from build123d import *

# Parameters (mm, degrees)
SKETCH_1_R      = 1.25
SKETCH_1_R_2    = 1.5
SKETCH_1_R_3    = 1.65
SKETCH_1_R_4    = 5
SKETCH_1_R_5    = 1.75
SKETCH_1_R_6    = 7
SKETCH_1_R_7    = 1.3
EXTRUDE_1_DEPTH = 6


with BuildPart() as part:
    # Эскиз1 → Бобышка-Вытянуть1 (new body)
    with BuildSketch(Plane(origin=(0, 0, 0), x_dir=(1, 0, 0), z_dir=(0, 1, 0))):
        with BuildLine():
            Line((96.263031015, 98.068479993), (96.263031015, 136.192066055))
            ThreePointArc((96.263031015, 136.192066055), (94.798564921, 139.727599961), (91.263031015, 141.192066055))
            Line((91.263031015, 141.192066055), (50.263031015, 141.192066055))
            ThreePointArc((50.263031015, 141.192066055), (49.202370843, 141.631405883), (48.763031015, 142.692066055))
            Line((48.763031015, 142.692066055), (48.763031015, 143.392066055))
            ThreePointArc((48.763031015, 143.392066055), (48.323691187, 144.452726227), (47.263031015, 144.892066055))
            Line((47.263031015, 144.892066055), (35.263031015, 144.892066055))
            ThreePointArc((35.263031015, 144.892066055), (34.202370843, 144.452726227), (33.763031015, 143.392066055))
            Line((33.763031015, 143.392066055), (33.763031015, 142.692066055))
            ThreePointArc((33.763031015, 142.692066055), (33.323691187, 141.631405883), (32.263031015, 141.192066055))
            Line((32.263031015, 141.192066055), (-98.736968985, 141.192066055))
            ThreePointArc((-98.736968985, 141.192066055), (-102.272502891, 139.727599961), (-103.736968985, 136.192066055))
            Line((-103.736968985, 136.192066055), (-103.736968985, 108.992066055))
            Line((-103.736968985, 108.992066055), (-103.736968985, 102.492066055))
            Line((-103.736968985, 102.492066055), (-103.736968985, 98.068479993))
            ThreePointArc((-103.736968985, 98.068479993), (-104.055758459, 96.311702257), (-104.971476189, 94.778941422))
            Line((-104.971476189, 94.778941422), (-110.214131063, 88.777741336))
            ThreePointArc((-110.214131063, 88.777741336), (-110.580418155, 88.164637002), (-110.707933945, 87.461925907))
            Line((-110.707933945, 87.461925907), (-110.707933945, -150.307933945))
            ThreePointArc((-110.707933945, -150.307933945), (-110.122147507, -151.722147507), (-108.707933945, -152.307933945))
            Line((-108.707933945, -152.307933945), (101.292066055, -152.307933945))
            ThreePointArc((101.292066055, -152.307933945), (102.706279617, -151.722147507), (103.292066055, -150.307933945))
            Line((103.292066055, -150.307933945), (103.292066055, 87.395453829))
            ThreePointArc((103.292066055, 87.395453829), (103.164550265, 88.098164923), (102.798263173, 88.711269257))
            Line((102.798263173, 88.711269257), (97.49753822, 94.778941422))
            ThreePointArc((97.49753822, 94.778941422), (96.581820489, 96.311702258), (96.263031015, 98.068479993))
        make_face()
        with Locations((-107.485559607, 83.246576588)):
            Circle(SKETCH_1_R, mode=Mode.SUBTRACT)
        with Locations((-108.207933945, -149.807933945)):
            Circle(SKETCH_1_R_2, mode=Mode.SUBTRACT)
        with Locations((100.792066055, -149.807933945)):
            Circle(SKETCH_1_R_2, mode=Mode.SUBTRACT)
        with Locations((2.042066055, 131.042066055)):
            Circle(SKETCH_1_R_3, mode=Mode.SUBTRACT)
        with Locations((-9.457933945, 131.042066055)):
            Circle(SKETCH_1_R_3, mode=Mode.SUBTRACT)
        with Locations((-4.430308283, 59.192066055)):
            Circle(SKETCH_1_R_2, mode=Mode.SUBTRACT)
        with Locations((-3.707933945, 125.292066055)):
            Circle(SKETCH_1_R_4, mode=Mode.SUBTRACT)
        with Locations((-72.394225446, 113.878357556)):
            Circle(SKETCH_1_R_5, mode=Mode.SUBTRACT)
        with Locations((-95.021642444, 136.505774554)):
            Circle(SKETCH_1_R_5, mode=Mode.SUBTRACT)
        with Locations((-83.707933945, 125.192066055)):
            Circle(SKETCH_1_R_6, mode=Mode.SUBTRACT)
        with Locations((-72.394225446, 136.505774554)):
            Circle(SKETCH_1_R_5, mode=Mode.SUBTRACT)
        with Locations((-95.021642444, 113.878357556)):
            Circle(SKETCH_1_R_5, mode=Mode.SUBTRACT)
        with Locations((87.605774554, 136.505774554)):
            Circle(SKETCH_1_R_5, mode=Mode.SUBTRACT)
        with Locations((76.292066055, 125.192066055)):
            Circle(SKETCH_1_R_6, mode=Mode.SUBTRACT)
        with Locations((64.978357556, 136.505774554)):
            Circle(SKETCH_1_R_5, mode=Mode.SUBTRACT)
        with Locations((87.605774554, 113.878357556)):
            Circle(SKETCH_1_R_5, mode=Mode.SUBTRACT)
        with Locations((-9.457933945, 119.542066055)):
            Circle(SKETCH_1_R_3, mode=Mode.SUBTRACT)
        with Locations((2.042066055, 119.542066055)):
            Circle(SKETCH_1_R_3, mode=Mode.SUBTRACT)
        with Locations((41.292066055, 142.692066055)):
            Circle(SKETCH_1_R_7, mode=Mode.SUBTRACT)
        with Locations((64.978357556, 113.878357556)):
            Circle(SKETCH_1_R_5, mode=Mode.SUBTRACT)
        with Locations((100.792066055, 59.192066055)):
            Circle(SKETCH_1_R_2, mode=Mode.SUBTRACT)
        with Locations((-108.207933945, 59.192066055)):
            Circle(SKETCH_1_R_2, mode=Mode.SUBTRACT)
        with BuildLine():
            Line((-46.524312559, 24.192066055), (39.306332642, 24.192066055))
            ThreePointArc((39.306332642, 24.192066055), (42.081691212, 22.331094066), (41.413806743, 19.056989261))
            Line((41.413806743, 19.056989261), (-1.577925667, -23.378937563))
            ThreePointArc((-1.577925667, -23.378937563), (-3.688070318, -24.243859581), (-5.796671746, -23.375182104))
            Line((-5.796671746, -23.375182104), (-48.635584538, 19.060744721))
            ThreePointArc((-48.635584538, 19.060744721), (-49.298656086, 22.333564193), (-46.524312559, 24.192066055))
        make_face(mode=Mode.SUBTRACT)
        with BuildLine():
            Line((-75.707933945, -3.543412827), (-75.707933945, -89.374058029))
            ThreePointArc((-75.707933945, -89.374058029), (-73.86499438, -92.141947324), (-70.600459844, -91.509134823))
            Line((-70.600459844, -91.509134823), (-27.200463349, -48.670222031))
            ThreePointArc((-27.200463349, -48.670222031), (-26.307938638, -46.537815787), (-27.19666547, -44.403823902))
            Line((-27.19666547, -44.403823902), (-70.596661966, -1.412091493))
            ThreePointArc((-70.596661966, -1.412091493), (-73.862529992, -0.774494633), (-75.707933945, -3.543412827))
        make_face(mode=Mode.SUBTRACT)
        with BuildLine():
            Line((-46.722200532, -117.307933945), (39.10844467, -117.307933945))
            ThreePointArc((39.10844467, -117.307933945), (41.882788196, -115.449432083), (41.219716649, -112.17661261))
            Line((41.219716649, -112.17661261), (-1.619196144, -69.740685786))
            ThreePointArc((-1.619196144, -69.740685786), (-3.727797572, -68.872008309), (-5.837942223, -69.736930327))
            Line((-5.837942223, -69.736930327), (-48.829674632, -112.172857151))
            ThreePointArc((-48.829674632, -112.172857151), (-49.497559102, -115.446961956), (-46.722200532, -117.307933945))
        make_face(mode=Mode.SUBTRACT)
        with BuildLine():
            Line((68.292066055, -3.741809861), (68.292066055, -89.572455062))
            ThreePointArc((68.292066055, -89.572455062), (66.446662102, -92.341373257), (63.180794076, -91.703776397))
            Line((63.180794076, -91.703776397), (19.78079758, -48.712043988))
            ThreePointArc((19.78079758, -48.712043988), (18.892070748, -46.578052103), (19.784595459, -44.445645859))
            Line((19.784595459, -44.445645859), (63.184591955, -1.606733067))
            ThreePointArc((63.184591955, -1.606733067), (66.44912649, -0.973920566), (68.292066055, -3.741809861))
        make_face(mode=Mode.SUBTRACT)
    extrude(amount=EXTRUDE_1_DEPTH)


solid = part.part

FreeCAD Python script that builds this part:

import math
import FreeCAD as App
import Part
import Sketcher

doc = App.newDocument("Part")
body = doc.addObject("PartDesign::Body", "Body")

sketch1 = doc.addObject("Sketcher::SketchObject", "Sketch")
body.addObject(sketch1)
sketch1.AttachmentSupport = (doc.XZ_Plane, [""])
sketch1.MapMode = "FlatFace"
sketch1.addGeometry([
    Part.LineSegment(App.Vector(96.3, -98.1, 0), App.Vector(96.3, -136.2, 0)),
    Part.ArcOfCircle(Part.Circle(App.Vector(91.3, -136.2, 0), App.Vector(0, 0, 1), 5), math.radians(-90), math.radians(0)),
    Part.LineSegment(App.Vector(91.3, -141.2, 0), App.Vector(50.3, -141.2, 0)),
    Part.ArcOfCircle(Part.Circle(App.Vector(50.3, -142.7, 0), App.Vector(0, 0, 1), 1.5), math.radians(90), math.radians(180)),
    Part.LineSegment(App.Vector(48.8, -142.7, 0), App.Vector(48.8, -143.4, 0)),
    Part.ArcOfCircle(Part.Circle(App.Vector(47.3, -143.4, 0), App.Vector(0, 0, 1), 1.5), math.radians(-90), math.radians(0)),
    Part.LineSegment(App.Vector(47.3, -144.9, 0), App.Vector(35.3, -144.9, 0)),
    Part.ArcOfCircle(Part.Circle(App.Vector(35.3, -143.4, 0), App.Vector(0, 0, 1), 1.5), math.radians(180), math.radians(270)),
    Part.LineSegment(App.Vector(33.8, -143.4, 0), App.Vector(33.8, -142.7, 0)),
    Part.ArcOfCircle(Part.Circle(App.Vector(32.3, -142.7, 0), App.Vector(0, 0, 1), 1.5), math.radians(0), math.radians(90)),
    Part.LineSegment(App.Vector(32.3, -141.2, 0), App.Vector(-98.7, -141.2, 0)),
    Part.ArcOfCircle(Part.Circle(App.Vector(-98.7, -136.2, 0), App.Vector(0, 0, 1), 5), math.radians(180), math.radians(270)),
    Part.LineSegment(App.Vector(-103.7, -136.2, 0), App.Vector(-103.7, -98.1, 0)),
    Part.ArcOfCircle(Part.Circle(App.Vector(-108.7, -98.1, 0), App.Vector(0, 0, 1), 5), math.radians(0), math.radians(41)),
    Part.LineSegment(App.Vector(-105, -94.8, 0), App.Vector(-110.2, -88.8, 0)),
    Part.ArcOfCircle(Part.Circle(App.Vector(-108.7, -87.5, 0), App.Vector(0, 0, 1), 2), math.radians(-180), math.radians(-139)),
    Part.LineSegment(App.Vector(-110.7, -87.5, 0), App.Vector(-110.7, 150.3, 0)),
    Part.ArcOfCircle(Part.Circle(App.Vector(-108.7, 150.3, 0), App.Vector(0, 0, 1), 2), math.radians(90), math.radians(180)),
    Part.LineSegment(App.Vector(-108.7, 152.3, 0), App.Vector(101.3, 152.3, 0)),
    Part.ArcOfCircle(Part.Circle(App.Vector(101.3, 150.3, 0), App.Vector(0, 0, 1), 2), math.radians(0), math.radians(90)),
    Part.LineSegment(App.Vector(103.3, 150.3, 0), App.Vector(103.3, -87.4, 0)),
    Part.ArcOfCircle(Part.Circle(App.Vector(101.3, -87.4, 0), App.Vector(0, 0, 1), 2), math.radians(-41), math.radians(0)),
    Part.LineSegment(App.Vector(102.8, -88.7, 0), App.Vector(97.5, -94.8, 0)),
    Part.ArcOfCircle(Part.Circle(App.Vector(101.3, -98.1, 0), App.Vector(0, 0, 1), 5), math.radians(139), math.radians(180)),
    Part.Circle(App.Vector(-108.2, 149.8, 0), App.Vector(0, 0, 1), 1.5),
    Part.LineSegment(App.Vector(39.1, 117.3, 0), App.Vector(-46.7, 117.3, 0)),
    Part.ArcOfCircle(Part.Circle(App.Vector(-46.7, 114.3, 0), App.Vector(0, 0, 1), 3), math.radians(90), math.radians(225)),
    Part.LineSegment(App.Vector(-48.8, 112.2, 0), App.Vector(-5.8, 69.7, 0)),
    Part.ArcOfCircle(Part.Circle(App.Vector(-3.7, 71.9, 0), App.Vector(0, 0, 1), 3), math.radians(-135), math.radians(-45)),
    Part.LineSegment(App.Vector(-1.6, 69.7, 0), App.Vector(41.2, 112.2, 0)),
    Part.ArcOfCircle(Part.Circle(App.Vector(39.1, 114.3, 0), App.Vector(0, 0, 1), 3), math.radians(-45), math.radians(90)),
    Part.LineSegment(App.Vector(-75.7, 89.4, 0), App.Vector(-75.7, 3.5, 0)),
    Part.ArcOfCircle(Part.Circle(App.Vector(-72.7, 3.5, 0), App.Vector(0, 0, 1), 3), math.radians(-180), math.radians(-45)),
    Part.LineSegment(App.Vector(-70.6, 1.4, 0), App.Vector(-27.2, 44.4, 0)),
    Part.ArcOfCircle(Part.Circle(App.Vector(-29.3, 46.5, 0), App.Vector(0, 0, 1), 3), math.radians(-45), math.radians(45)),
    Part.LineSegment(App.Vector(-27.2, 48.7, 0), App.Vector(-70.6, 91.5, 0)),
    Part.ArcOfCircle(Part.Circle(App.Vector(-72.7, 89.4, 0), App.Vector(0, 0, 1), 3), math.radians(45), math.radians(180)),
    Part.Circle(App.Vector(100.8, 149.8, 0), App.Vector(0, 0, 1), 1.5),
    Part.ArcOfCircle(Part.Circle(App.Vector(65.3, 3.7, 0), App.Vector(0, 0, 1), 3), math.radians(-135), math.radians(0)),
    Part.LineSegment(App.Vector(68.3, 3.7, 0), App.Vector(68.3, 89.6, 0)),
    Part.ArcOfCircle(Part.Circle(App.Vector(65.3, 89.6, 0), App.Vector(0, 0, 1), 3), math.radians(0), math.radians(135)),
    Part.LineSegment(App.Vector(63.2, 91.7, 0), App.Vector(19.8, 48.7, 0)),
    Part.ArcOfCircle(Part.Circle(App.Vector(21.9, 46.6, 0), App.Vector(0, 0, 1), 3), math.radians(135), math.radians(225)),
    Part.LineSegment(App.Vector(19.8, 44.4, 0), App.Vector(63.2, 1.6, 0)),
    Part.Circle(App.Vector(-108.2, -59.2, 0), App.Vector(0, 0, 1), 1.5),
    Part.Circle(App.Vector(-4.4, -59.2, 0), App.Vector(0, 0, 1), 1.5),
    Part.Circle(App.Vector(-107.5, -83.2, 0), App.Vector(0, 0, 1), 1.2),
    Part.Circle(App.Vector(-95, -113.9, 0), App.Vector(0, 0, 1), 1.8),
    Part.Circle(App.Vector(-83.7, -125.2, 0), App.Vector(0, 0, 1), 7),
    Part.Circle(App.Vector(-95, -136.5, 0), App.Vector(0, 0, 1), 1.8),
    Part.Circle(App.Vector(-72.4, -113.9, 0), App.Vector(0, 0, 1), 1.8),
    Part.Circle(App.Vector(-72.4, -136.5, 0), App.Vector(0, 0, 1), 1.8),
    Part.Circle(App.Vector(-9.5, -119.5, 0), App.Vector(0, 0, 1), 1.6),
    Part.Circle(App.Vector(-3.7, -125.3, 0), App.Vector(0, 0, 1), 5),
    Part.Circle(App.Vector(-9.5, -131, 0), App.Vector(0, 0, 1), 1.6),
    Part.ArcOfCircle(Part.Circle(App.Vector(-46.5, -21.2, 0), App.Vector(0, 0, 1), 3), math.radians(135), math.radians(270)),
    Part.LineSegment(App.Vector(-46.5, -24.2, 0), App.Vector(39.3, -24.2, 0)),
    Part.ArcOfCircle(Part.Circle(App.Vector(39.3, -21.2, 0), App.Vector(0, 0, 1), 3), math.radians(-90), math.radians(45)),
    Part.LineSegment(App.Vector(41.4, -19.1, 0), App.Vector(-1.6, 23.4, 0)),
    Part.ArcOfCircle(Part.Circle(App.Vector(-3.7, 21.2, 0), App.Vector(0, 0, 1), 3), math.radians(45), math.radians(135)),
    Part.LineSegment(App.Vector(-5.8, 23.4, 0), App.Vector(-48.6, -19.1, 0)),
    Part.Circle(App.Vector(100.8, -59.2, 0), App.Vector(0, 0, 1), 1.5),
    Part.Circle(App.Vector(2, -119.5, 0), App.Vector(0, 0, 1), 1.6),
    Part.Circle(App.Vector(2, -131, 0), App.Vector(0, 0, 1), 1.6),
    Part.Circle(App.Vector(41.3, -142.7, 0), App.Vector(0, 0, 1), 1.3),
    Part.Circle(App.Vector(65, -113.9, 0), App.Vector(0, 0, 1), 1.8),
    Part.Circle(App.Vector(65, -136.5, 0), App.Vector(0, 0, 1), 1.8),
    Part.Circle(App.Vector(87.6, -113.9, 0), App.Vector(0, 0, 1), 1.8),
    Part.Circle(App.Vector(76.3, -125.2, 0), App.Vector(0, 0, 1), 7),
    Part.Circle(App.Vector(87.6, -136.5, 0), App.Vector(0, 0, 1), 1.8),
], False)
sketch1.addConstraint([
    Sketcher.Constraint("Tangent", 0, 2, 1, 2),
    Sketcher.Constraint("Tangent", 1, 1, 2, 1),
    Sketcher.Constraint("Tangent", 2, 2, 3, 1),
    Sketcher.Constraint("Tangent", 3, 2, 4, 1),
    Sketcher.Constraint("Tangent", 4, 2, 5, 2),
    Sketcher.Constraint("Tangent", 5, 1, 6, 1),
    Sketcher.Constraint("Tangent", 6, 2, 7, 2),
    Sketcher.Constraint("Tangent", 7, 1, 8, 1),
    Sketcher.Constraint("Tangent", 8, 2, 9, 1),
    Sketcher.Constraint("Tangent", 9, 2, 10, 1),
    Sketcher.Constraint("Tangent", 10, 2, 11, 2),
    Sketcher.Constraint("Tangent", 11, 1, 12, 1),
    Sketcher.Constraint("Tangent", 12, 2, 13, 1),
    Sketcher.Constraint("Tangent", 13, 2, 14, 1),
    Sketcher.Constraint("Tangent", 14, 2, 15, 2),
    Sketcher.Constraint("Tangent", 15, 1, 16, 1),
    Sketcher.Constraint("Tangent", 16, 2, 17, 2),
    Sketcher.Constraint("Tangent", 17, 1, 18, 1),
    Sketcher.Constraint("Tangent", 18, 2, 19, 2),
    Sketcher.Constraint("Tangent", 19, 1, 20, 1),
    Sketcher.Constraint("Tangent", 20, 2, 21, 2),
    Sketcher.Constraint("Tangent", 21, 1, 22, 1),
    Sketcher.Constraint("Tangent", 22, 2, 23, 1),
    Sketcher.Constraint("Tangent", 23, 2, 0, 1),
    Sketcher.Constraint("Tangent", 25, 2, 26, 1),
    Sketcher.Constraint("Tangent", 26, 2, 27, 1),
    Sketcher.Constraint("Tangent", 27, 2, 28, 1),
    Sketcher.Constraint("Tangent", 28, 2, 29, 1),
    Sketcher.Constraint("Tangent", 29, 2, 30, 1),
    Sketcher.Constraint("Tangent", 30, 2, 25, 1),
    Sketcher.Constraint("Tangent", 31, 2, 32, 1),
    Sketcher.Constraint("Tangent", 32, 2, 33, 1),
    Sketcher.Constraint("Tangent", 33, 2, 34, 1),
    Sketcher.Constraint("Tangent", 34, 2, 35, 1),
    Sketcher.Constraint("Tangent", 35, 2, 36, 1),
    Sketcher.Constraint("Tangent", 36, 2, 31, 1),
    Sketcher.Constraint("Tangent", 38, 2, 39, 1),
    Sketcher.Constraint("Tangent", 39, 2, 40, 1),
    Sketcher.Constraint("Tangent", 40, 2, 41, 1),
    Sketcher.Constraint("Tangent", 41, 2, 42, 1),
    Sketcher.Constraint("Tangent", 42, 2, 43, 1),
    Sketcher.Constraint("Tangent", 43, 2, 38, 1),
    Sketcher.Constraint("Tangent", 55, 2, 56, 1),
    Sketcher.Constraint("Tangent", 56, 2, 57, 1),
    Sketcher.Constraint("Tangent", 57, 2, 58, 1),
    Sketcher.Constraint("Tangent", 58, 2, 59, 1),
    Sketcher.Constraint("Tangent", 59, 2, 60, 1),
    Sketcher.Constraint("Tangent", 60, 2, 55, 1),
    Sketcher.Constraint("Vertical", 0),
    Sketcher.Constraint("Horizontal", 2),
    Sketcher.Constraint("Vertical", 4),
    Sketcher.Constraint("Horizontal", 6),
    Sketcher.Constraint("Vertical", 8),
    Sketcher.Constraint("Horizontal", 10),
    Sketcher.Constraint("Vertical", 12),
    Sketcher.Constraint("Vertical", 16),
    Sketcher.Constraint("Horizontal", 18),
    Sketcher.Constraint("Vertical", 20),
    Sketcher.Constraint("Horizontal", 25),
    Sketcher.Constraint("Vertical", 31),
    Sketcher.Constraint("Vertical", 39),
    Sketcher.Constraint("Horizontal", 56),
    Sketcher.Constraint("Equal", 3, 5),
    Sketcher.Constraint("Equal", 5, 7),
    Sketcher.Constraint("Equal", 7, 9),
    Sketcher.Constraint("Equal", 1, 11),
    Sketcher.Constraint("Equal", 11, 13),
    Sketcher.Constraint("Equal", 15, 17),
    Sketcher.Constraint("Equal", 17, 19),
    Sketcher.Constraint("Equal", 19, 21),
    Sketcher.Constraint("Equal", 13, 23),
    Sketcher.Constraint("Equal", 9, 24),
    Sketcher.Constraint("Equal", 26, 28),
    Sketcher.Constraint("Equal", 28, 30),
    Sketcher.Constraint("Equal", 30, 32),
    Sketcher.Constraint("Equal", 32, 34),
    Sketcher.Constraint("Equal", 34, 36),
    Sketcher.Constraint("Equal", 24, 37),
    Sketcher.Constraint("Equal", 36, 38),
    Sketcher.Constraint("Equal", 38, 40),
    Sketcher.Constraint("Equal", 40, 42),
    Sketcher.Constraint("Equal", 37, 44),
    Sketcher.Constraint("Equal", 44, 45),
    Sketcher.Constraint("Equal", 47, 49),
    Sketcher.Constraint("Equal", 49, 50),
    Sketcher.Constraint("Equal", 50, 51),
    Sketcher.Constraint("Equal", 23, 53),
    Sketcher.Constraint("Equal", 52, 54),
    Sketcher.Constraint("Equal", 42, 55),
    Sketcher.Constraint("Equal", 55, 57),
    Sketcher.Constraint("Equal", 57, 59),
    Sketcher.Constraint("Equal", 45, 61),
    Sketcher.Constraint("Equal", 54, 62),
    Sketcher.Constraint("Equal", 62, 63),
    Sketcher.Constraint("Equal", 51, 65),
    Sketcher.Constraint("Equal", 65, 66),
    Sketcher.Constraint("Equal", 66, 67),
    Sketcher.Constraint("Equal", 48, 68),
    Sketcher.Constraint("Equal", 67, 69),
    Sketcher.Constraint("Parallel", 29, 33),
    Sketcher.Constraint("Parallel", 27, 35),
    Sketcher.Constraint("Parallel", 33, 41),
    Sketcher.Constraint("Parallel", 35, 43),
    Sketcher.Constraint("Parallel", 43, 58),
    Sketcher.Constraint("Parallel", 41, 60),
    Sketcher.Constraint("Horizontal", 3, 3, 9, 3),
    Sketcher.Constraint("Horizontal", 13, 3, 23, 3),
    Sketcher.Constraint("Horizontal", 24, 3, 37, 3),
    Sketcher.Constraint("Horizontal", 44, 3, 45, 3),
    Sketcher.Constraint("Horizontal", 47, 3, 50, 3),
    Sketcher.Constraint("Horizontal", 49, 3, 51, 3),
    Sketcher.Constraint("Horizontal", 45, 3, 61, 3),
    Sketcher.Constraint("Horizontal", 52, 3, 62, 3),
    Sketcher.Constraint("Horizontal", 54, 3, 63, 3),
    Sketcher.Constraint("Horizontal", 9, 3, 64, 3),
    Sketcher.Constraint("Horizontal", 50, 3, 65, 3),
    Sketcher.Constraint("Horizontal", 51, 3, 66, 3),
    Sketcher.Constraint("Horizontal", 65, 3, 67, 3),
    Sketcher.Constraint("Horizontal", 48, 3, 68, 3),
    Sketcher.Constraint("Horizontal", 66, 3, 69, 3),
    Sketcher.Constraint("Horizontal", 13, 2, 22, 2),
    Sketcher.Constraint("Vertical", 24, 3, 44, 3),
    Sketcher.Constraint("Vertical", 47, 3, 49, 3),
    Sketcher.Constraint("Vertical", 50, 3, 51, 3),
    Sketcher.Constraint("Vertical", 52, 3, 54, 3),
    Sketcher.Constraint("Vertical", 37, 3, 61, 3),
    Sketcher.Constraint("Vertical", 62, 3, 63, 3),
    Sketcher.Constraint("Vertical", 65, 3, 66, 3),
    Sketcher.Constraint("Vertical", 67, 3, 69, 3),
    Sketcher.Constraint("Equal", 25, 56),
    Sketcher.Constraint("Equal", 56, 31),
    Sketcher.Constraint("Equal", 31, 39),
    Sketcher.Constraint("Diameter", 24, 3.0),
    Sketcher.Constraint("Diameter", 48, 14.0),
    Sketcher.Constraint("Diameter", 53, 10.0),
    Sketcher.Constraint("Radius", 15, 2.0),
    Sketcher.Constraint("Radius", 26, 3.0),
    Sketcher.Constraint("Diameter", 46, 2.5),
    Sketcher.Constraint("Diameter", 47, 3.5),
    Sketcher.Constraint("Diameter", 52, 3.3),
    Sketcher.Constraint("Diameter", 64, 2.6),
    Sketcher.Constraint("DistanceX", 2, 2, 2, 1, 41.0),
    Sketcher.Constraint("DistanceX", 6, 2, 6, 1, 12.0),
    Sketcher.Constraint("DistanceX", 10, 2, 10, 1, 131.0),
    Sketcher.Constraint("DistanceX", 18, 1, 18, 2, 210.0),
    Sketcher.Constraint("DistanceY", 4, 2, 4, 1, 0.7),
    Sketcher.Constraint("DistanceY", 16, 1, 16, 2, 237.76986),
    Sketcher.Constraint("DistanceX", 26, 3, -1, 1, 46.722201),
    Sketcher.Constraint("DistanceX", 59, 3, -1, 1, 3.6854),
    Sketcher.Constraint("Distance", 14, 7.968678),
    Sketcher.Constraint("Distance", 29, 60.299091),
    Sketcher.Constraint("Distance", 33, 61.088859),
    Sketcher.Constraint("Distance", 35, 60.981408),
    Sketcher.Constraint("DistanceY", 0, 2, 0, 1, 38.123586),
    Sketcher.Constraint("DistanceY", 20, 2, 20, 1, 237.703388),
    Sketcher.Constraint("DistanceX", -1, 1, 1, 3, 91.263031),
    Sketcher.Constraint("DistanceY", 13, 3, -1, 1, 98.06848),
    Sketcher.Constraint("DistanceY", -1, 1, 36, 3, 89.374058),
    Sketcher.Constraint("DistanceY", -1, 1, 38, 3, 3.74181),
    Sketcher.Constraint("DistanceX", -1, 1, 42, 3, 21.89207),
    Sketcher.Constraint("DistanceX", 45, 3, -1, 1, 4.430308),
    Sketcher.Constraint("DistanceX", 46, 3, -1, 1, 107.48556),
    Sketcher.Constraint("DistanceY", -1, 1, 59, 3, 21.243861),
    Sketcher.Constraint("DistanceY", -1, 1, 27, 2, 69.73693),
    Sketcher.Constraint("DistanceX", 32, 2, -1, 1, 70.596662),
    Sketcher.Constraint("DistanceX", 24, 3, -1, 1, 108.207934),
    Sketcher.Constraint("DistanceY", -1, 1, 24, 3, 149.807934),
    Sketcher.Constraint("DistanceX", -1, 1, 37, 3, 100.792066),
    Sketcher.Constraint("DistanceY", 44, 3, -1, 1, 59.192066),
    Sketcher.Constraint("DistanceY", 46, 3, -1, 1, 83.246577),
    Sketcher.Constraint("DistanceX", 47, 3, -1, 1, 95.021642),
    Sketcher.Constraint("DistanceY", 47, 3, -1, 1, 113.878358),
    Sketcher.Constraint("DistanceX", 48, 3, -1, 1, 83.707934),
    Sketcher.Constraint("DistanceY", 48, 3, -1, 1, 125.192066),
    Sketcher.Constraint("DistanceY", 49, 3, -1, 1, 136.505775),
    Sketcher.Constraint("DistanceX", 50, 3, -1, 1, 72.394225),
    Sketcher.Constraint("DistanceX", 52, 3, -1, 1, 9.457934),
    Sketcher.Constraint("DistanceY", 52, 3, -1, 1, 119.542066),
    Sketcher.Constraint("DistanceX", 53, 3, -1, 1, 3.707934),
    Sketcher.Constraint("DistanceY", 53, 3, -1, 1, 125.292066),
    Sketcher.Constraint("DistanceY", 54, 3, -1, 1, 131.042066),
    Sketcher.Constraint("DistanceX", -1, 1, 62, 3, 2.042066),
    Sketcher.Constraint("DistanceX", -1, 1, 64, 3, 41.292066),
    Sketcher.Constraint("DistanceX", -1, 1, 65, 3, 64.978358),
    Sketcher.Constraint("DistanceX", -1, 1, 67, 3, 87.605775),
    Sketcher.Constraint("DistanceX", -1, 1, 68, 3, 76.292066),
])
pad1 = doc.addObject("PartDesign::Pad", "Pad")
body.addObject(pad1)
pad1.Profile = sketch1
pad1.Length = 6
pad1.Reversed = True

doc.recompute()
